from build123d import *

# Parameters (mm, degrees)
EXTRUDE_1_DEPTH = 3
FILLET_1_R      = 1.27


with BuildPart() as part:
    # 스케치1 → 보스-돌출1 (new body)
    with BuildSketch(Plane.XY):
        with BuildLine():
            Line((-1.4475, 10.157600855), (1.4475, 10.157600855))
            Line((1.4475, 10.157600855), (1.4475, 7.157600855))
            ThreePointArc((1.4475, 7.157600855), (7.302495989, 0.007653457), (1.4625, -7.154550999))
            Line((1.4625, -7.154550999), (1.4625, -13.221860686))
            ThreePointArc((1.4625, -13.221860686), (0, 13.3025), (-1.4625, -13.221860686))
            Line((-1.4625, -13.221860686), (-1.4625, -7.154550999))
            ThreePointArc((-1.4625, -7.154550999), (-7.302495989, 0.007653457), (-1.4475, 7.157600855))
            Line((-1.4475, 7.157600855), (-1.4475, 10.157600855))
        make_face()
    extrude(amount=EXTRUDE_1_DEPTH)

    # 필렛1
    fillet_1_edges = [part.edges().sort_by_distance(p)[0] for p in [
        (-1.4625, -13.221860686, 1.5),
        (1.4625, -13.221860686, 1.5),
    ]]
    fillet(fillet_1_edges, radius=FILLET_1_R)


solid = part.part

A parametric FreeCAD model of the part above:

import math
import FreeCAD as App
import Part
import Sketcher
Q = App.Units.Quantity


def edges_at(feature, points):
    """Names of the edges that pass closest to the given points."""
    edges = feature.Shape.Edges
    near = lambda p: min(range(len(edges)), key=lambda i: edges[i].distToShape(Part.Vertex(*p))[0])
    return sorted({f"Edge{near(p) + 1}" for p in points})

doc = App.newDocument("Part")
params = doc.addObject("Spreadsheet::Sheet", "Params")
for row, (alias, value) in enumerate([
    ("pad1_length", "3 mm"),
    ("fillet_radius", "0.05 in"),
], start=1):
    params.set(f"A{row}", alias)
    params.set(f"B{row}", "=" + value)
    params.setAlias(f"B{row}", alias)

body = doc.addObject("PartDesign::Body", "Body")

sketch1 = body.newObject("Sketcher::SketchObject", "Sketch")
sketch1.AttachmentSupport = (doc.getObject("XY_Plane"), [""])
sketch1.MapMode = "FlatFace"
sketch1.addGeometry([
    Part.LineSegment(App.Vector(-1.4, 10.2, 0), App.Vector(1.4, 10.2, 0)),
    Part.LineSegment(App.Vector(1.4, 10.2, 0), App.Vector(1.4, 7.2, 0)),
    Part.ArcOfCircle(Part.Circle(App.Vector(0, 0, 0), App.Vector(0, 0, 1), 7.3), math.radians(-78), math.radians(79)),
    Part.LineSegment(App.Vector(1.5, -7.2, 0), App.Vector(1.5, -13.2, 0)),
    Part.ArcOfCircle(Part.Circle(App.Vector(0, 0, 0), App.Vector(0, 0, 1), 13.3), math.radians(-84), math.radians(264)),
    Part.LineSegment(App.Vector(-1.5, -13.2, 0), App.Vector(-1.5, -7.2, 0)),
    Part.ArcOfCircle(Part.Circle(App.Vector(0, 0, 0), App.Vector(0, 0, 1), 7.3), math.radians(101), math.radians(258)),
    Part.LineSegment(App.Vector(-1.4, 7.2, 0), App.Vector(-1.4, 10.2, 0)),
], False)
sketch1.addConstraint([
    Sketcher.Constraint("Coincident", 0, 2, 1, 1),
    Sketcher.Constraint("Coincident", 1, 2, 2, 2),
    Sketcher.Constraint("Coincident", 2, 1, 3, 1),
    Sketcher.Constraint("Coincident", 3, 2, 4, 1),
    Sketcher.Constraint("Coincident", 4, 2, 5, 1),
    Sketcher.Constraint("Coincident", 5, 2, 6, 2),
    Sketcher.Constraint("Coincident", 6, 1, 7, 1),
    Sketcher.Constraint("Coincident", 7, 2, 0, 1),
    Sketcher.Constraint("Horizontal", 0),
    Sketcher.Constraint("Vertical", 1),
    Sketcher.Constraint("Vertical", 3),
    Sketcher.Constraint("Vertical", 5),
    Sketcher.Constraint("Vertical", 7),
    Sketcher.Constraint("Coincident", 2, 3, -1, 1),
    Sketcher.Constraint("Coincident", 4, 3, -1, 1),
    Sketcher.Constraint("Coincident", 6, 3, -1, 1),
    Sketcher.Constraint("Equal", 2, 6),
    Sketcher.Constraint("Horizontal", 3, 2, 4, 2),
    Sketcher.Constraint("Horizontal", 1, 2, 6, 1),
    Sketcher.Constraint("Radius", 2, Q("0.2875 in")),
    Sketcher.Constraint("Radius", 4, 13.3025),
    Sketcher.Constraint("DistanceX", 0, 1, 0, 2, 2.895),
    Sketcher.Constraint("DistanceY", 1, 2, 1, 1, 3.0),
    Sketcher.Constraint("DistanceY", 3, 2, 3, 1, 6.06731),
])
pad1 = body.newObject("PartDesign::Pad", "Pad")
pad1.Profile = sketch1
pad1.setExpression("Length", "Params.pad1_length")
doc.recompute()

fillet = body.newObject("PartDesign::Fillet", "Fillet")
fillet.Base = (pad1, edges_at(pad1, [(-1.462, -13.222, 1.5), (1.462, -13.222, 1.5)]))
fillet.setExpression("Radius", "Params.fillet_radius")

doc.recompute()
